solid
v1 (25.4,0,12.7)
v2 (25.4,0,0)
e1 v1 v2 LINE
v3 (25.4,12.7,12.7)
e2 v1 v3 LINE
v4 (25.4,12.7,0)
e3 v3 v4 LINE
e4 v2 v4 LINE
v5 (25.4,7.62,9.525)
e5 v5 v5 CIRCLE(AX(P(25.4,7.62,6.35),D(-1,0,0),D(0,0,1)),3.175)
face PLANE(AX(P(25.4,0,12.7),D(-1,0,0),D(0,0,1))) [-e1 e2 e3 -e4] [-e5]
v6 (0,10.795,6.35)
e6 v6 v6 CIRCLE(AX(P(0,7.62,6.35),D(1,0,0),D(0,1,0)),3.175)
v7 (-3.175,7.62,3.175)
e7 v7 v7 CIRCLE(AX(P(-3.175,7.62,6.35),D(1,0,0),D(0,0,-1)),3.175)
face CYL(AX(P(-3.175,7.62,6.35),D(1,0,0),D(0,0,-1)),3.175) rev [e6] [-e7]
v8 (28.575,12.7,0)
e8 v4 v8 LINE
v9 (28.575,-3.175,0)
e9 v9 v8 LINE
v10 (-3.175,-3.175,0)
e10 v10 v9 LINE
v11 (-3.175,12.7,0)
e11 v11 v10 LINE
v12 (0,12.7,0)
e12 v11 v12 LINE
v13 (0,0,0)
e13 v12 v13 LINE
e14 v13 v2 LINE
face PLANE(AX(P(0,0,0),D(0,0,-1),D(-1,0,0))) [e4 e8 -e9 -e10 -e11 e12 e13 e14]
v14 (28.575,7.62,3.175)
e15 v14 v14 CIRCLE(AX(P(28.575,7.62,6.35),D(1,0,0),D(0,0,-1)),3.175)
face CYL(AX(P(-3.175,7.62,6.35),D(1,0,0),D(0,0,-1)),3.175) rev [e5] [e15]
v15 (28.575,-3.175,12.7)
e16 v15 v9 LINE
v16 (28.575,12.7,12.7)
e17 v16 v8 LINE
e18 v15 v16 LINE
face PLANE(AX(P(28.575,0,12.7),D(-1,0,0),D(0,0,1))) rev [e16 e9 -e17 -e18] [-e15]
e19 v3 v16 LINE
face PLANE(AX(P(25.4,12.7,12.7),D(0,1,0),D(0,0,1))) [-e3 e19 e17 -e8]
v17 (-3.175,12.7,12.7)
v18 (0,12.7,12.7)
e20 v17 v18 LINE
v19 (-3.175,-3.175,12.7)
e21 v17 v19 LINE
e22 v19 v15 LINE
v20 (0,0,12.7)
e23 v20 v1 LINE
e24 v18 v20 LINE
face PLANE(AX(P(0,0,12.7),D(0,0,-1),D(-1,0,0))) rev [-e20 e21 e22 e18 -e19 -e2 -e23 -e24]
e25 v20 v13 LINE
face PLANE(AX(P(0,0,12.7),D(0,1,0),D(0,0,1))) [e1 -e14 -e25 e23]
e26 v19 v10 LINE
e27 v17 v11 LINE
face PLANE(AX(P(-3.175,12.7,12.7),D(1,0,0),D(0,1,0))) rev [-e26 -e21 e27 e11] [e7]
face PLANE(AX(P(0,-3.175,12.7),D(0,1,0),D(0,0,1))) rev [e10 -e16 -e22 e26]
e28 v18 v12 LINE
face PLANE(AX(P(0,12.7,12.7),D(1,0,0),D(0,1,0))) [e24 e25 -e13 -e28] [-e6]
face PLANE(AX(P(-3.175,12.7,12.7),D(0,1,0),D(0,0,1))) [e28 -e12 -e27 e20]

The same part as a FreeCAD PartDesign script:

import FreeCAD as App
import Part
import Sketcher
Q = App.Units.Quantity


def add_polygon(sketch, points):
    """Adds a closed chain of lines whose ends are joined by coincident constraints."""
    first, n = sketch.GeometryCount, len(points)
    for a, b in zip(points, points[1:] + points[:1]):
        sketch.addGeometry(Part.LineSegment(App.Vector(*a, 0), App.Vector(*b, 0)), False)
    for i in range(n):
        sketch.addConstraint(Sketcher.Constraint("Coincident", first + i, 2, first + (i + 1) % n, 1))

doc = App.newDocument("Part")
body = doc.addObject("PartDesign::Body", "Body")

# Sketch on XY plane
sketch1 = body.newObject("Sketcher::SketchObject", "Sketch")
sketch1.AttachmentSupport = (doc.getObject("XY_Plane"), [""])
sketch1.MapMode = "FlatFace"
add_polygon(sketch1, [(0, 0), (0, 12.7), (-3.2, 12.7), (-3.2, -3.2), (28.6, -3.2), (28.6, 12.7), (25.4, 12.7), (25.4, 0)])  # lines 0-7
sketch1.addConstraint(Sketcher.Constraint("Vertical", 0))
sketch1.addConstraint(Sketcher.Constraint("Horizontal", 1))
sketch1.addConstraint(Sketcher.Constraint("Vertical", 2))
sketch1.addConstraint(Sketcher.Constraint("Horizontal", 3))
sketch1.addConstraint(Sketcher.Constraint("Vertical", 4))
sketch1.addConstraint(Sketcher.Constraint("Horizontal", 5))
sketch1.addConstraint(Sketcher.Constraint("Vertical", 6))
sketch1.addConstraint(Sketcher.Constraint("Horizontal", 7))
sketch1.addConstraint(Sketcher.Constraint("Coincident", 7, 2, -1, 1))
sketch1.addConstraint(Sketcher.Constraint("Horizontal", 1, 2, 4, 2))
sketch1.addConstraint(Sketcher.Constraint("Equal", 1, 5))
sketch1.addConstraint(Sketcher.Constraint("DistanceX", 7, 2, 7, 1, Q("1 in")))
sketch1.addConstraint(Sketcher.Constraint("DistanceY", 0, 1, 0, 2, Q("0.5 in")))
sketch1.addConstraint(Sketcher.Constraint("DistanceX", 3, 1, 3, 2, Q("1.25 in")))
sketch1.addConstraint(Sketcher.Constraint("DistanceY", 2, 2, 2, 1, Q("0.625 in")))
pad1 = body.newObject("PartDesign::Pad", "Pad")
pad1.Profile = sketch1
pad1.Length = Q("0.5 in")

# Sketch on YZ plane
sketch2 = body.newObject("Sketcher::SketchObject", "Sketch001")
sketch2.AttachmentSupport = (doc.getObject("YZ_Plane"), [""])
sketch2.MapMode = "FlatFace"
sketch2.AttachmentOffset = App.Placement(App.Vector(0, 0, 1.125 * 25.4), App.Rotation())
sketch2.addGeometry(Part.Circle(App.Vector(7.6, 6.3, 0), App.Vector(0, 0, 1), 3.2), False)
sketch2.addConstraint(Sketcher.Constraint("Diameter", 0, Q("0.25 in")))
sketch2.addConstraint(Sketcher.Constraint("DistanceX", -1, 1, 0, 3, Q("0.3 in")))
sketch2.addConstraint(Sketcher.Constraint("DistanceY", -1, 1, 0, 3, Q("0.25 in")))
pocket1 = body.newObject("PartDesign::Pocket", "Pocket")
pocket1.Profile = sketch2
pocket1.Type = "ThroughAll"

doc.recompute()
